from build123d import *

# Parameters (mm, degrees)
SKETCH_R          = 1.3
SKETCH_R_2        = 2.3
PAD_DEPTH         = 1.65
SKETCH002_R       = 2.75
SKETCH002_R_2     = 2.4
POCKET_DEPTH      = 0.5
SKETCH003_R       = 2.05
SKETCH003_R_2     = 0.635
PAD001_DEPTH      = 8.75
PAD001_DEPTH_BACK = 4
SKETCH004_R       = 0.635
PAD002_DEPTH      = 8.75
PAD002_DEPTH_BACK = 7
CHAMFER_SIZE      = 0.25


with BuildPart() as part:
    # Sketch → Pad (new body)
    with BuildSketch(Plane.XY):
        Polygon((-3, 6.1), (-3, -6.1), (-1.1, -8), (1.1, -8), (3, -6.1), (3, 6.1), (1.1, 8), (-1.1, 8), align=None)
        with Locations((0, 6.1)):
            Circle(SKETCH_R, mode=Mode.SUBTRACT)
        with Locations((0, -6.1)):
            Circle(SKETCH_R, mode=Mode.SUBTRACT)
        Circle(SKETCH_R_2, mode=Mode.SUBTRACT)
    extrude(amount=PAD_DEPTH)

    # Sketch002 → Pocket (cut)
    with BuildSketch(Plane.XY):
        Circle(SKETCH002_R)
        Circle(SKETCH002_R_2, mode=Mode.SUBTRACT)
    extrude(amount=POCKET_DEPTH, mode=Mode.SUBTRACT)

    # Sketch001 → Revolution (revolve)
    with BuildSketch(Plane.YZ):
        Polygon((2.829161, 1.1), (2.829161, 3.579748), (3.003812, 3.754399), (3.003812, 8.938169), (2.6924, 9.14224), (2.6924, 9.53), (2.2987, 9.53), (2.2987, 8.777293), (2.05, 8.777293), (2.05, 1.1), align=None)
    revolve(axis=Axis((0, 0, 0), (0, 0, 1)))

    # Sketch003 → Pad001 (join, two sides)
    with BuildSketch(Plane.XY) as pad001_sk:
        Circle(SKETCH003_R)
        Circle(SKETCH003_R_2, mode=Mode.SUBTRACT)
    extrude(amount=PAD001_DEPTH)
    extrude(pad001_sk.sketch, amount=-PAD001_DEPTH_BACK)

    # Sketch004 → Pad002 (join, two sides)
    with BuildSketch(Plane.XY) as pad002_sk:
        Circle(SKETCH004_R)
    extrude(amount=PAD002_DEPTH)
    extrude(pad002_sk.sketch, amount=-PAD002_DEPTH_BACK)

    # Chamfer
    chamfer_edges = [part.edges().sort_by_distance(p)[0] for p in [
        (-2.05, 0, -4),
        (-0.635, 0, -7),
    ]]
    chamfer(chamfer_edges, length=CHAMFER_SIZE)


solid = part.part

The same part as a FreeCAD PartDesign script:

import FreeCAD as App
import Part
import Sketcher
Q = App.Units.Quantity


def edges_at(feature, points):
    """Names of the edges that pass closest to the given points."""
    edges = feature.Shape.Edges
    near = lambda p: min(range(len(edges)), key=lambda i: edges[i].distToShape(Part.Vertex(*p))[0])
    return sorted({f"Edge{near(p) + 1}" for p in points})

doc = App.newDocument("Part")
body = doc.addObject("PartDesign::Body", "Body")

sketch1 = doc.addObject("Sketcher::SketchObject", "Sketch")
body.addObject(sketch1)
sketch1.AttachmentSupport = (doc.XY_Plane, [""])
sketch1.MapMode = "FlatFace"
sketch1.addGeometry(Part.LineSegment(App.Vector(-3, 6.1, 0), App.Vector(-3, -6.1, 0)), False)
sketch1.addGeometry(Part.LineSegment(App.Vector(-3, -6.1, 0), App.Vector(-1.1, -8, 0)), False)
sketch1.addGeometry(Part.LineSegment(App.Vector(-1.1, -8, 0), App.Vector(1.1, -8, 0)), False)
sketch1.addGeometry(Part.LineSegment(App.Vector(1.1, -8, 0), App.Vector(3, -6.1, 0)), False)
sketch1.addGeometry(Part.LineSegment(App.Vector(3, -6.1, 0), App.Vector(3, 6.1, 0)), False)
sketch1.addGeometry(Part.LineSegment(App.Vector(3, 6.1, 0), App.Vector(1.1, 8, 0)), False)
sketch1.addGeometry(Part.LineSegment(App.Vector(1.1, 8, 0), App.Vector(-1.1, 8, 0)), False)
sketch1.addGeometry(Part.LineSegment(App.Vector(-1.1, 8, 0), App.Vector(-3, 6.1, 0)), False)
sketch1.addGeometry(Part.Circle(App.Vector(0, -6.1, 0), App.Vector(0, 0, 1), 1.3), False)
sketch1.addGeometry(Part.Circle(App.Vector(0, 0, 0), App.Vector(0, 0, 1), 2.3), False)
sketch1.addGeometry(Part.Circle(App.Vector(0, 6.1, 0), App.Vector(0, 0, 1), 1.3), False)
sketch1.addConstraint(Sketcher.Constraint("Coincident", 0, 2, 1, 1))
sketch1.addConstraint(Sketcher.Constraint("Coincident", 1, 2, 2, 1))
sketch1.addConstraint(Sketcher.Constraint("Coincident", 2, 2, 3, 1))
sketch1.addConstraint(Sketcher.Constraint("Coincident", 3, 2, 4, 1))
sketch1.addConstraint(Sketcher.Constraint("Coincident", 4, 2, 5, 1))
sketch1.addConstraint(Sketcher.Constraint("Coincident", 5, 2, 6, 1))
sketch1.addConstraint(Sketcher.Constraint("Coincident", 6, 2, 7, 1))
sketch1.addConstraint(Sketcher.Constraint("Coincident", 7, 2, 0, 1))
sketch1.addConstraint(Sketcher.Constraint("Vertical", 0))
sketch1.addConstraint(Sketcher.Constraint("Horizontal", 2))
sketch1.addConstraint(Sketcher.Constraint("Vertical", 4))
sketch1.addConstraint(Sketcher.Constraint("Horizontal", 6))
sketch1.addConstraint(Sketcher.Constraint("Coincident", 9, 3, -1, 1))
sketch1.addConstraint(Sketcher.Constraint("Equal", 8, 10))
sketch1.addConstraint(Sketcher.Constraint("Symmetric", 8, 3, 10, 3, -1, 1))
sketch1.addConstraint(Sketcher.Constraint("Symmetric", 0, 2, 4, 2, -1, 1))
sketch1.addConstraint(Sketcher.Constraint("Symmetric", 1, 2, 5, 2, -1, 1))
sketch1.addConstraint(Sketcher.Constraint("PointOnObject", 8, 3, -2))
sketch1.addConstraint(Sketcher.Constraint("Perpendicular", 1, 3))
sketch1.addConstraint(Sketcher.Constraint("Perpendicular", 5, 7))
sketch1.addConstraint(Sketcher.Constraint("Horizontal", 8, 3, 0, 2))
sketch1.addConstraint(Sketcher.Constraint("Horizontal", 0, 2, 3, 2))
sketch1.addConstraint(Sketcher.Constraint("Horizontal", 4, 2, 7, 2))
sketch1.addConstraint(Sketcher.Constraint("Vertical", 2, 2, 5, 2))
sketch1.addConstraint(Sketcher.Constraint("Diameter", 8, 2.6))
sketch1.addConstraint(Sketcher.Constraint("Diameter", 9, 4.6))
sketch1.addConstraint(Sketcher.Constraint("DistanceX", 2, 1, 2, 2, 2.2))
sketch1.addConstraint(Sketcher.Constraint("DistanceY", 0, 2, 0, 1, 12.2))
sketch1.addConstraint(Sketcher.Constraint("DistanceX", 0, 2, -1, 1, 3.0))
pad1 = doc.addObject("PartDesign::Pad", "Pad")
body.addObject(pad1)
pad1.Profile = sketch1
pad1.Length = 1.65

sketch2 = doc.addObject("Sketcher::SketchObject", "Sketch001")
body.addObject(sketch2)
sketch2.AttachmentSupport = (doc.XY_Plane, [""])
sketch2.MapMode = "FlatFace"
sketch2.addGeometry(Part.Circle(App.Vector(0, 0, 0), App.Vector(0, 0, 1), 2.75), False)
sketch2.addGeometry(Part.Circle(App.Vector(0, 0, 0), App.Vector(0, 0, 1), 2.4), False)
sketch2.addConstraint(Sketcher.Constraint("Coincident", 0, 3, -1, 1))
sketch2.addConstraint(Sketcher.Constraint("Coincident", 1, 3, -1, 1))
sketch2.addConstraint(Sketcher.Constraint("Diameter", 0, 5.5))
sketch2.addConstraint(Sketcher.Constraint("Diameter", 1, 4.8))
pocket1 = doc.addObject("PartDesign::Pocket", "Pocket")
body.addObject(pocket1)
pocket1.Profile = sketch2
pocket1.Length = 0.5
pocket1.Reversed = True

sketch3 = doc.addObject("Sketcher::SketchObject", "Sketch002")
body.addObject(sketch3)
sketch3.AttachmentSupport = (doc.YZ_Plane, [""])
sketch3.MapMode = "FlatFace"
sketch3.addGeometry(Part.LineSegment(App.Vector(2.829161, 1.1, 0), App.Vector(2.829161, 3.579748, 0)), False)
sketch3.addGeometry(Part.LineSegment(App.Vector(2.829161, 3.579748, 0), App.Vector(3.003812, 3.754399, 0)), False)
sketch3.addGeometry(Part.LineSegment(App.Vector(3.003812, 3.754399, 0), App.Vector(3.003812, 8.938169, 0)), False)
sketch3.addGeometry(Part.LineSegment(App.Vector(3.003812, 8.938169, 0), App.Vector(2.6924, 9.14224, 0)), False)
sketch3.addGeometry(Part.LineSegment(App.Vector(2.6924, 9.14224, 0), App.Vector(2.6924, 9.53, 0)), False)
sketch3.addGeometry(Part.LineSegment(App.Vector(2.6924, 9.53, 0), App.Vector(2.2987, 9.53, 0)), False)
sketch3.addGeometry(Part.LineSegment(App.Vector(2.2987, 9.53, 0), App.Vector(2.2987, 8.777293, 0)), False)
sketch3.addGeometry(Part.LineSegment(App.Vector(2.2987, 8.777293, 0), App.Vector(2.05, 8.777293, 0)), False)
sketch3.addGeometry(Part.LineSegment(App.Vector(2.05, 8.777293, 0), App.Vector(2.05, 1.1, 0)), False)
sketch3.addGeometry(Part.LineSegment(App.Vector(2.05, 1.1, 0), App.Vector(2.829161, 1.1, 0)), False)
sketch3.addConstraint(Sketcher.Constraint("Coincident", 0, 2, 1, 1))
sketch3.addConstraint(Sketcher.Constraint("Coincident", 1, 2, 2, 1))
sketch3.addConstraint(Sketcher.Constraint("Coincident", 2, 2, 3, 1))
sketch3.addConstraint(Sketcher.Constraint("Coincident", 3, 2, 4, 1))
sketch3.addConstraint(Sketcher.Constraint("Coincident", 4, 2, 5, 1))
sketch3.addConstraint(Sketcher.Constraint("Coincident", 5, 2, 6, 1))
sketch3.addConstraint(Sketcher.Constraint("Coincident", 6, 2, 7, 1))
sketch3.addConstraint(Sketcher.Constraint("Coincident", 7, 2, 8, 1))
sketch3.addConstraint(Sketcher.Constraint("Coincident", 8, 2, 9, 1))
sketch3.addConstraint(Sketcher.Constraint("Coincident", 9, 2, 0, 1))
sketch3.addConstraint(Sketcher.Constraint("Vertical", 0))
sketch3.addConstraint(Sketcher.Constraint("Vertical", 2))
sketch3.addConstraint(Sketcher.Constraint("Vertical", 4))
sketch3.addConstraint(Sketcher.Constraint("Horizontal", 5))
sketch3.addConstraint(Sketcher.Constraint("Vertical", 6))
sketch3.addConstraint(Sketcher.Constraint("Horizontal", 7))
sketch3.addConstraint(Sketcher.Constraint("Vertical", 8))
sketch3.addConstraint(Sketcher.Constraint("Horizontal", 9))
sketch3.addConstraint(Sketcher.Constraint("Angle", 1, Q("45 deg")))
sketch3.addConstraint(Sketcher.Constraint("DistanceY", -1, 1, 8, 2, 1.1))
sketch3.addConstraint(Sketcher.Constraint("DistanceY", -1, 1, 4, 2, 9.53))
sketch3.addConstraint(Sketcher.Constraint("DistanceX", -1, 1, 7, 2, 2.05))
sketch3.addConstraint(Sketcher.Constraint("DistanceX", 5, 2, 5, 1, 0.3937))
sketch3.addConstraint(Sketcher.Constraint("DistanceX", 7, 2, 7, 1, 0.2487))
sketch3.addConstraint(Sketcher.Constraint("DistanceX", 9, 1, 9, 2, 0.779161))
sketch3.addConstraint(Sketcher.Constraint("DistanceY", 2, 1, 2, 2, 5.18377))
sketch3.addConstraint(Sketcher.Constraint("DistanceY", 4, 1, 4, 2, 0.38776))
sketch3.addConstraint(Sketcher.Constraint("DistanceY", -1, 1, 1, 2, 3.754399))
sketch3.addConstraint(Sketcher.Constraint("Distance", 3, 0.37232))
sketch3.addConstraint(Sketcher.Constraint("DistanceY", 6, 2, 6, 1, 0.752707))
revolution = doc.addObject("PartDesign::Revolution", "Revolution")
body.addObject(revolution)
revolution.Profile = sketch3
revolution.ReferenceAxis = (sketch3, ["V_Axis"])
revolution.Angle = 360

sketch4 = doc.addObject("Sketcher::SketchObject", "Sketch003")
body.addObject(sketch4)
sketch4.AttachmentSupport = (doc.XY_Plane, [""])
sketch4.MapMode = "FlatFace"
sketch4.addGeometry(Part.Circle(App.Vector(0, 0, 0), App.Vector(0, 0, 1), 2.05), False)
sketch4.addGeometry(Part.Circle(App.Vector(0, 0, 0), App.Vector(0, 0, 1), 0.635), False)
sketch4.addConstraint(Sketcher.Constraint("Coincident", 0, 3, -1, 1))
sketch4.addConstraint(Sketcher.Constraint("Coincident", 1, 3, -1, 1))
sketch4.addConstraint(Sketcher.Constraint("Diameter", 0, 4.1))
sketch4.addConstraint(Sketcher.Constraint("Diameter", 1, 1.27))
pad2 = doc.addObject("PartDesign::Pad", "Pad001")
body.addObject(pad2)
pad2.Profile = sketch4
pad2.Type = "TwoLengths"
pad2.Length = 8.75
pad2.Length2 = 4

sketch5 = doc.addObject("Sketcher::SketchObject", "Sketch004")
body.addObject(sketch5)
sketch5.AttachmentSupport = (doc.XY_Plane, [""])
sketch5.MapMode = "FlatFace"
sketch5.addGeometry(Part.Circle(App.Vector(0, 0, 0), App.Vector(0, 0, 1), 0.635), False)
sketch5.addConstraint(Sketcher.Constraint("Coincident", 0, 3, -1, 1))
sketch5.addConstraint(Sketcher.Constraint("Diameter", 0, 1.27))
pad3 = doc.addObject("PartDesign::Pad", "Pad002")
body.addObject(pad3)
pad3.Profile = sketch5
pad3.Type = "TwoLengths"
pad3.Length = 8.75
pad3.Length2 = 7
doc.recompute()

chamfer = doc.addObject("PartDesign::Chamfer", "Chamfer")
body.addObject(chamfer)
chamfer.Base = (pad3, edges_at(pad3, [(-2.05, 0, -4), (-0.635, 0, -7)]))
chamfer.Size = 0.25

doc.recompute()
